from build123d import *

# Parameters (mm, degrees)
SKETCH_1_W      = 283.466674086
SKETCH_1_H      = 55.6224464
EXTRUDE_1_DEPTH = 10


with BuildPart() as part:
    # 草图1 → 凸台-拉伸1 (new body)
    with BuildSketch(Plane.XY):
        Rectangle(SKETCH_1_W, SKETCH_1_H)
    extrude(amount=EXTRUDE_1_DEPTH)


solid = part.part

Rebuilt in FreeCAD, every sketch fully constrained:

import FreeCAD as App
import Part
import Sketcher

V = App.Vector

doc = App.newDocument("Part")
body = doc.addObject("PartDesign::Body", "Body")

sketch1 = body.newObject("Sketcher::SketchObject", "Sketch")
sketch1.AttachmentSupport = (doc.getObject("XY_Plane"), [""])
sketch1.MapMode = "FlatFace"
sketch1.addGeometry(Part.LineSegment(V(-142, 28, 0), V(-142, -28, 0)), False)
sketch1.addGeometry(Part.LineSegment(V(-142, -28, 0), V(142, -28, 0)), False)
sketch1.addGeometry(Part.LineSegment(V(142, -28, 0), V(142, 28, 0)), False)
sketch1.addGeometry(Part.LineSegment(V(142, 28, 0), V(-142, 28, 0)), False)
sketch1.addConstraint(Sketcher.Constraint("Coincident", 0, 2, 1, 1))
sketch1.addConstraint(Sketcher.Constraint("Coincident", 1, 2, 2, 1))
sketch1.addConstraint(Sketcher.Constraint("Coincident", 2, 2, 3, 1))
sketch1.addConstraint(Sketcher.Constraint("Coincident", 3, 2, 0, 1))
sketch1.addConstraint(Sketcher.Constraint("Vertical", 0))
sketch1.addConstraint(Sketcher.Constraint("Horizontal", 1))
sketch1.addConstraint(Sketcher.Constraint("Vertical", 2))
sketch1.addConstraint(Sketcher.Constraint("Horizontal", 3))
sketch1.addConstraint(Sketcher.Constraint("Symmetric", 0, 2, 2, 2, -1, 1))
sketch1.addConstraint(Sketcher.Constraint("DistanceX", 1, 1, 1, 2, 283.466674))
sketch1.addConstraint(Sketcher.Constraint("DistanceY", 0, 2, 0, 1, 55.622446))
pad1 = body.newObject("PartDesign::Pad", "Pad")
pad1.Profile = sketch1
pad1.Length = 10

doc.recompute()
